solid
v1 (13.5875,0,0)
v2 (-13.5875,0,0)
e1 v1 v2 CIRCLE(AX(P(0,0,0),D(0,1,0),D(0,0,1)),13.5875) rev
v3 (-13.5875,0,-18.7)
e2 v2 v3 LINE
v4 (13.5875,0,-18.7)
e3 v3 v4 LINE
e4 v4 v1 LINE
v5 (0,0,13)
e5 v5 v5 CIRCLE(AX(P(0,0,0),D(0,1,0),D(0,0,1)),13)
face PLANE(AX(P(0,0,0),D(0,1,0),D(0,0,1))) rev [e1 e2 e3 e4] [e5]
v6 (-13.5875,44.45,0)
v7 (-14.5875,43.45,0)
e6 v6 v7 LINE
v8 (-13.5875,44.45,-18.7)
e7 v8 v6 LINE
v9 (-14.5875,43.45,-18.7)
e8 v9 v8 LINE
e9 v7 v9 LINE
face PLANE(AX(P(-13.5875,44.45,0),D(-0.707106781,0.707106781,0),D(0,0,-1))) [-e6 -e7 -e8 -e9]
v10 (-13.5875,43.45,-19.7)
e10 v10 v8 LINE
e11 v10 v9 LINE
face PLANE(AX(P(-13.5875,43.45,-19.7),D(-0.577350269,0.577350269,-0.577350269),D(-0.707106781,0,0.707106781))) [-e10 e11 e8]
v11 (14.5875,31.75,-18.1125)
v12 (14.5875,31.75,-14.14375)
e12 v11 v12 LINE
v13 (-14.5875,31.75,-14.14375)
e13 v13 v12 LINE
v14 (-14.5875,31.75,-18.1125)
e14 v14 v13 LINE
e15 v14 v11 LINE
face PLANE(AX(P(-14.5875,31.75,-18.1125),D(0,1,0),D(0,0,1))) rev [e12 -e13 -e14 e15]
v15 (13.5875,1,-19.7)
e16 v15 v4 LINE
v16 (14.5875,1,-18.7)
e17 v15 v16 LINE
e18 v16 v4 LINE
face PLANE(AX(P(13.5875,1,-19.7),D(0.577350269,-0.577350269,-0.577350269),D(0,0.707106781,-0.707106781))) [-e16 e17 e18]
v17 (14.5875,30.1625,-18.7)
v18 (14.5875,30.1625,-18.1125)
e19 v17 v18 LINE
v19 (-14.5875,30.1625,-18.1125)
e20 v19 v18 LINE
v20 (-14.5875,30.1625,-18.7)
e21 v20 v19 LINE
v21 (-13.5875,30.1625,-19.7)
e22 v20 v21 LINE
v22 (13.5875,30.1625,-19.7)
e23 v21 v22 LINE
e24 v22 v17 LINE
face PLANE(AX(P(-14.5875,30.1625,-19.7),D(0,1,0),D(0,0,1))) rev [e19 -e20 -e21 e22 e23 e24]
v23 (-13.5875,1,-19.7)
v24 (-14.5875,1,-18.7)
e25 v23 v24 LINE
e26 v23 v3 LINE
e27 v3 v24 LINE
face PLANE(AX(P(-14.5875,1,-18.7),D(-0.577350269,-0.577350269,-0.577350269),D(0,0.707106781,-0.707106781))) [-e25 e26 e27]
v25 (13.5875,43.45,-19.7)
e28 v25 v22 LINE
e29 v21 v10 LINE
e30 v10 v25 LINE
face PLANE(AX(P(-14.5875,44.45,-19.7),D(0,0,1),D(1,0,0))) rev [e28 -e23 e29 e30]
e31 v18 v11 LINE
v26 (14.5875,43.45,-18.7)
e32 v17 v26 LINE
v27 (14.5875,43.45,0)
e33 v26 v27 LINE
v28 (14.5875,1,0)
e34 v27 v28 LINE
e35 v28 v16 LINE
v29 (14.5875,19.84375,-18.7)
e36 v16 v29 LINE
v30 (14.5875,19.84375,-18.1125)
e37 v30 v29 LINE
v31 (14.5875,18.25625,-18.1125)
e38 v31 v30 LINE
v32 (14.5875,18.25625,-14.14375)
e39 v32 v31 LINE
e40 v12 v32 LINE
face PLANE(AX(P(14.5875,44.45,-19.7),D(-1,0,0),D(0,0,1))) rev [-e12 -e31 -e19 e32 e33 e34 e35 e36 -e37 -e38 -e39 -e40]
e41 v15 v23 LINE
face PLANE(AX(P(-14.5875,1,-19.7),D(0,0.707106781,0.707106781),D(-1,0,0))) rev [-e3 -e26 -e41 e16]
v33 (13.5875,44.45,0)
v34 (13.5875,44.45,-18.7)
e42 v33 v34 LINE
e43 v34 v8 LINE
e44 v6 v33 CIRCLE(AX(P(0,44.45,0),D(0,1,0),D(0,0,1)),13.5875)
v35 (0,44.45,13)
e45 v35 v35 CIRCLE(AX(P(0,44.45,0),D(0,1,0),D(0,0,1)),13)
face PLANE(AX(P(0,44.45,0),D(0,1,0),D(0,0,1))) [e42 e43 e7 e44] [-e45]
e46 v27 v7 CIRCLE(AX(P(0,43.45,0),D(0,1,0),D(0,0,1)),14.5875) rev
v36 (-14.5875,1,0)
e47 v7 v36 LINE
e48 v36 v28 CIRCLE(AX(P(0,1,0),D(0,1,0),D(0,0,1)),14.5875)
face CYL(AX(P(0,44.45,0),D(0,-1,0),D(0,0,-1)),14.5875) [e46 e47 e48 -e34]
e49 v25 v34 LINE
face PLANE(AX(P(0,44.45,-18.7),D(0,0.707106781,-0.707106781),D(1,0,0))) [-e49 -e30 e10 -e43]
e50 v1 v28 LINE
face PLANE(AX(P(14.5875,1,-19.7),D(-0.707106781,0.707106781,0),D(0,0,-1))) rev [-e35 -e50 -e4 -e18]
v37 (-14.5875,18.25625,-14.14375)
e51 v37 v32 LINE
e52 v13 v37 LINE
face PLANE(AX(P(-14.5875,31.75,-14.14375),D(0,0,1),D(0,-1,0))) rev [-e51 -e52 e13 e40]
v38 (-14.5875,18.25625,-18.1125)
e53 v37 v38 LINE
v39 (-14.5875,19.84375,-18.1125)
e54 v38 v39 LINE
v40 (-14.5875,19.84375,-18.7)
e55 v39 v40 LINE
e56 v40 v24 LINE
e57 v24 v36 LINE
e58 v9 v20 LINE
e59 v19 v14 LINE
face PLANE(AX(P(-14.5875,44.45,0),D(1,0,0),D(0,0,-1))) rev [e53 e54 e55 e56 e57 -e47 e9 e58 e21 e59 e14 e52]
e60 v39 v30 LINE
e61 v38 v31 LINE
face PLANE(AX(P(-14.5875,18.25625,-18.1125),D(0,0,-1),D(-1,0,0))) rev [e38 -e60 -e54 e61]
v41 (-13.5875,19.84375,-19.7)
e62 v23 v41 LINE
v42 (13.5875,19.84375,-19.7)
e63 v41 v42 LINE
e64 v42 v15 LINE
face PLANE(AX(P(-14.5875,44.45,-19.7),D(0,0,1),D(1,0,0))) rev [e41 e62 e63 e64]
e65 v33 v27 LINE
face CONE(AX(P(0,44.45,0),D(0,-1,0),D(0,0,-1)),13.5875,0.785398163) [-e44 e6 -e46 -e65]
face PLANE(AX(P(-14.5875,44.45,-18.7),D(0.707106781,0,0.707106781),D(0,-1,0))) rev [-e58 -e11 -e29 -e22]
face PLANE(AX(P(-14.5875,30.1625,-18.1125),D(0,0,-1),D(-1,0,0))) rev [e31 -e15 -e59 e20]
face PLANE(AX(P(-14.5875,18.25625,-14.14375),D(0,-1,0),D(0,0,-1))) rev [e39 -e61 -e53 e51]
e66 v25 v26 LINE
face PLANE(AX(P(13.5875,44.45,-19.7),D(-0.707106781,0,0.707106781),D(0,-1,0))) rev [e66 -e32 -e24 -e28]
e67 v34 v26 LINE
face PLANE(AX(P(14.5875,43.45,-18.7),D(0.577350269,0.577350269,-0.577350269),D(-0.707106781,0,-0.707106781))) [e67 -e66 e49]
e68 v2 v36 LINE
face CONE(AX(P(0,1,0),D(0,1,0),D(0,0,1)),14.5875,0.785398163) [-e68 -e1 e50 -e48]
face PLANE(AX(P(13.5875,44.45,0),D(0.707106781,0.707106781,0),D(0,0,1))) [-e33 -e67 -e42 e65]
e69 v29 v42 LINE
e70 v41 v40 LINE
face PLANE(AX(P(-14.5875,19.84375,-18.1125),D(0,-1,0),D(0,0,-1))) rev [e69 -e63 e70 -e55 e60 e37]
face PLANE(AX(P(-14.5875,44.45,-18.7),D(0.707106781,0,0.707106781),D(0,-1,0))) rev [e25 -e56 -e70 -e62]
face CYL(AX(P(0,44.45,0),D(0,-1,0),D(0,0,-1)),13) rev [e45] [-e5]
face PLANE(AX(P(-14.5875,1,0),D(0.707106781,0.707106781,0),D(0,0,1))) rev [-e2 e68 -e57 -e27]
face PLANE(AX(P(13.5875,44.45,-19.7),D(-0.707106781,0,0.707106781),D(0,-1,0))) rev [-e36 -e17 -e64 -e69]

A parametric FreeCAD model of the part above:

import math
import FreeCAD as App
import Part
import Sketcher
from FreeCAD import Vector
Q = App.Units.Quantity


def edges_at(feature, points):
    """Names of the edges that pass closest to the given points."""
    edges = feature.Shape.Edges
    near = lambda p: min(range(len(edges)), key=lambda i: edges[i].distToShape(Part.Vertex(*p))[0])
    return sorted({f"Edge{near(p) + 1}" for p in points})


def add_polygon(sketch, points):
    """Adds a closed chain of lines whose ends are joined by coincident constraints."""
    first, n = sketch.GeometryCount, len(points)
    for a, b in zip(points, points[1:] + points[:1]):
        sketch.addGeometry(Part.LineSegment(App.Vector(*a, 0), App.Vector(*b, 0)), False)
    for i in range(n):
        sketch.addConstraint(Sketcher.Constraint("Coincident", first + i, 2, first + (i + 1) % n, 1))

doc = App.newDocument("Part")
body = doc.addObject("PartDesign::Body", "Body")

# Sketch on XZ plane
sketch1 = body.newObject("Sketcher::SketchObject", "Sketch")
sketch1.AttachmentSupport = (doc.getObject("XZ_Plane"), [""])
sketch1.MapMode = "FlatFace"
sketch1.addGeometry(Part.LineSegment(Vector(-14.5875, -19.7, 0), Vector(-14.5875, 0, 0)), False)
sketch1.addGeometry(Part.ArcOfCircle(Part.Circle(Vector(0, 0, 0), Vector(0, 0, 1), 14.5875), math.radians(0), math.radians(180)), False)
sketch1.addGeometry(Part.LineSegment(Vector(14.5875, 0, 0), Vector(14.5875, -19.7, 0)), False)
sketch1.addGeometry(Part.LineSegment(Vector(14.5875, -19.7, 0), Vector(-14.5875, -19.7, 0)), False)
sketch1.addGeometry(Part.Circle(Vector(0, 0, 0), Vector(0, 0, 1), 13), False)
sketch1.addConstraint(Sketcher.Constraint("Tangent", 0, 2, 1, 2))
sketch1.addConstraint(Sketcher.Constraint("Tangent", 1, 1, 2, 1))
sketch1.addConstraint(Sketcher.Constraint("Coincident", 2, 2, 3, 1))
sketch1.addConstraint(Sketcher.Constraint("Coincident", 3, 2, 0, 1))
sketch1.addConstraint(Sketcher.Constraint("Vertical", 0))
sketch1.addConstraint(Sketcher.Constraint("Vertical", 2))
sketch1.addConstraint(Sketcher.Constraint("Horizontal", 3))
sketch1.addConstraint(Sketcher.Constraint("Coincident", 1, 3, -1, 1))
sketch1.addConstraint(Sketcher.Constraint("Coincident", 4, 3, -1, 1))
sketch1.addConstraint(Sketcher.Constraint("Diameter", 4, 26.0))
sketch1.addConstraint(Sketcher.Constraint("Radius", 1, 14.5875))
sketch1.addConstraint(Sketcher.Constraint("DistanceY", 0, 1, 0, 2, 19.7))
pad1 = body.newObject("PartDesign::Pad", "Pad")
pad1.Profile = sketch1
pad1.Length = Q("1.75 in")
pad1.Reversed = True

# Sketch on YZ plane
sketch2 = body.newObject("Sketcher::SketchObject", "Sketch001")
sketch2.AttachmentSupport = (doc.getObject("YZ_Plane"), [""])
sketch2.MapMode = "FlatFace"
sketch2.AttachmentOffset = App.Placement(Vector(0, 0, 14.5875), App.Rotation())
add_polygon(sketch2, [(30.1625, -19.7), (30.1625, -18.1125), (31.75, -18.1125), (31.75, -14.14375), (18.25625, -14.14375), (18.25625, -18.1125), (19.84375, -18.1125), (19.84375, -19.7)])  # lines 0-7
sketch2.addConstraint(Sketcher.Constraint("Vertical", 0))
sketch2.addConstraint(Sketcher.Constraint("Horizontal", 1))
sketch2.addConstraint(Sketcher.Constraint("Vertical", 2))
sketch2.addConstraint(Sketcher.Constraint("Horizontal", 3))
sketch2.addConstraint(Sketcher.Constraint("Vertical", 4))
sketch2.addConstraint(Sketcher.Constraint("Horizontal", 5))
sketch2.addConstraint(Sketcher.Constraint("Vertical", 6))
sketch2.addConstraint(Sketcher.Constraint("Horizontal", 7))
sketch2.addConstraint(Sketcher.Constraint("Horizontal", 1, 2, 4, 2))
sketch2.addConstraint(Sketcher.Constraint("Equal", 1, 5))
sketch2.addConstraint(Sketcher.Constraint("Equal", 5, 0))
sketch2.addConstraint(Sketcher.Constraint("DistanceX", 1, 1, 1, 2, Q("0.0625 in")))
sketch2.addConstraint(Sketcher.Constraint("DistanceX", 3, 2, 3, 1, Q("0.53125 in")))
sketch2.addConstraint(Sketcher.Constraint("DistanceY", 2, 1, 2, 2, Q("0.15625 in")))
sketch2.addConstraint(Sketcher.Constraint("DistanceX", -1, 1, 1, 2, Q("1.25 in")))
sketch2.addConstraint(Sketcher.Constraint("DistanceY", 0, 2, -1, 1, 18.1125))
pocket1 = body.newObject("PartDesign::Pocket", "Pocket")
pocket1.Profile = sketch2
pocket1.Type = "ThroughAll"
doc.recompute()

chamfer = body.newObject("PartDesign::Chamfer", "Chamfer")
chamfer.Base = (pocket1, edges_at(pocket1, [
    (0, 44.45, -19.7),
    (-14.588, 44.45, -9.85),
    (-14.588, 9.922, -19.7),
    (14.588, 9.922, -19.7),
    (0, 44.45, 14.588),
    (-14.588, 0, -9.85),
    (0, 0, -19.7),
    (14.588, 0, -9.85),
    (0, 0, 14.588),
    (14.588, 44.45, -9.85),
    (-14.588, 37.306, -19.7),
    (14.588, 37.306, -19.7),
]))
chamfer.Size = 1

doc.recompute()
